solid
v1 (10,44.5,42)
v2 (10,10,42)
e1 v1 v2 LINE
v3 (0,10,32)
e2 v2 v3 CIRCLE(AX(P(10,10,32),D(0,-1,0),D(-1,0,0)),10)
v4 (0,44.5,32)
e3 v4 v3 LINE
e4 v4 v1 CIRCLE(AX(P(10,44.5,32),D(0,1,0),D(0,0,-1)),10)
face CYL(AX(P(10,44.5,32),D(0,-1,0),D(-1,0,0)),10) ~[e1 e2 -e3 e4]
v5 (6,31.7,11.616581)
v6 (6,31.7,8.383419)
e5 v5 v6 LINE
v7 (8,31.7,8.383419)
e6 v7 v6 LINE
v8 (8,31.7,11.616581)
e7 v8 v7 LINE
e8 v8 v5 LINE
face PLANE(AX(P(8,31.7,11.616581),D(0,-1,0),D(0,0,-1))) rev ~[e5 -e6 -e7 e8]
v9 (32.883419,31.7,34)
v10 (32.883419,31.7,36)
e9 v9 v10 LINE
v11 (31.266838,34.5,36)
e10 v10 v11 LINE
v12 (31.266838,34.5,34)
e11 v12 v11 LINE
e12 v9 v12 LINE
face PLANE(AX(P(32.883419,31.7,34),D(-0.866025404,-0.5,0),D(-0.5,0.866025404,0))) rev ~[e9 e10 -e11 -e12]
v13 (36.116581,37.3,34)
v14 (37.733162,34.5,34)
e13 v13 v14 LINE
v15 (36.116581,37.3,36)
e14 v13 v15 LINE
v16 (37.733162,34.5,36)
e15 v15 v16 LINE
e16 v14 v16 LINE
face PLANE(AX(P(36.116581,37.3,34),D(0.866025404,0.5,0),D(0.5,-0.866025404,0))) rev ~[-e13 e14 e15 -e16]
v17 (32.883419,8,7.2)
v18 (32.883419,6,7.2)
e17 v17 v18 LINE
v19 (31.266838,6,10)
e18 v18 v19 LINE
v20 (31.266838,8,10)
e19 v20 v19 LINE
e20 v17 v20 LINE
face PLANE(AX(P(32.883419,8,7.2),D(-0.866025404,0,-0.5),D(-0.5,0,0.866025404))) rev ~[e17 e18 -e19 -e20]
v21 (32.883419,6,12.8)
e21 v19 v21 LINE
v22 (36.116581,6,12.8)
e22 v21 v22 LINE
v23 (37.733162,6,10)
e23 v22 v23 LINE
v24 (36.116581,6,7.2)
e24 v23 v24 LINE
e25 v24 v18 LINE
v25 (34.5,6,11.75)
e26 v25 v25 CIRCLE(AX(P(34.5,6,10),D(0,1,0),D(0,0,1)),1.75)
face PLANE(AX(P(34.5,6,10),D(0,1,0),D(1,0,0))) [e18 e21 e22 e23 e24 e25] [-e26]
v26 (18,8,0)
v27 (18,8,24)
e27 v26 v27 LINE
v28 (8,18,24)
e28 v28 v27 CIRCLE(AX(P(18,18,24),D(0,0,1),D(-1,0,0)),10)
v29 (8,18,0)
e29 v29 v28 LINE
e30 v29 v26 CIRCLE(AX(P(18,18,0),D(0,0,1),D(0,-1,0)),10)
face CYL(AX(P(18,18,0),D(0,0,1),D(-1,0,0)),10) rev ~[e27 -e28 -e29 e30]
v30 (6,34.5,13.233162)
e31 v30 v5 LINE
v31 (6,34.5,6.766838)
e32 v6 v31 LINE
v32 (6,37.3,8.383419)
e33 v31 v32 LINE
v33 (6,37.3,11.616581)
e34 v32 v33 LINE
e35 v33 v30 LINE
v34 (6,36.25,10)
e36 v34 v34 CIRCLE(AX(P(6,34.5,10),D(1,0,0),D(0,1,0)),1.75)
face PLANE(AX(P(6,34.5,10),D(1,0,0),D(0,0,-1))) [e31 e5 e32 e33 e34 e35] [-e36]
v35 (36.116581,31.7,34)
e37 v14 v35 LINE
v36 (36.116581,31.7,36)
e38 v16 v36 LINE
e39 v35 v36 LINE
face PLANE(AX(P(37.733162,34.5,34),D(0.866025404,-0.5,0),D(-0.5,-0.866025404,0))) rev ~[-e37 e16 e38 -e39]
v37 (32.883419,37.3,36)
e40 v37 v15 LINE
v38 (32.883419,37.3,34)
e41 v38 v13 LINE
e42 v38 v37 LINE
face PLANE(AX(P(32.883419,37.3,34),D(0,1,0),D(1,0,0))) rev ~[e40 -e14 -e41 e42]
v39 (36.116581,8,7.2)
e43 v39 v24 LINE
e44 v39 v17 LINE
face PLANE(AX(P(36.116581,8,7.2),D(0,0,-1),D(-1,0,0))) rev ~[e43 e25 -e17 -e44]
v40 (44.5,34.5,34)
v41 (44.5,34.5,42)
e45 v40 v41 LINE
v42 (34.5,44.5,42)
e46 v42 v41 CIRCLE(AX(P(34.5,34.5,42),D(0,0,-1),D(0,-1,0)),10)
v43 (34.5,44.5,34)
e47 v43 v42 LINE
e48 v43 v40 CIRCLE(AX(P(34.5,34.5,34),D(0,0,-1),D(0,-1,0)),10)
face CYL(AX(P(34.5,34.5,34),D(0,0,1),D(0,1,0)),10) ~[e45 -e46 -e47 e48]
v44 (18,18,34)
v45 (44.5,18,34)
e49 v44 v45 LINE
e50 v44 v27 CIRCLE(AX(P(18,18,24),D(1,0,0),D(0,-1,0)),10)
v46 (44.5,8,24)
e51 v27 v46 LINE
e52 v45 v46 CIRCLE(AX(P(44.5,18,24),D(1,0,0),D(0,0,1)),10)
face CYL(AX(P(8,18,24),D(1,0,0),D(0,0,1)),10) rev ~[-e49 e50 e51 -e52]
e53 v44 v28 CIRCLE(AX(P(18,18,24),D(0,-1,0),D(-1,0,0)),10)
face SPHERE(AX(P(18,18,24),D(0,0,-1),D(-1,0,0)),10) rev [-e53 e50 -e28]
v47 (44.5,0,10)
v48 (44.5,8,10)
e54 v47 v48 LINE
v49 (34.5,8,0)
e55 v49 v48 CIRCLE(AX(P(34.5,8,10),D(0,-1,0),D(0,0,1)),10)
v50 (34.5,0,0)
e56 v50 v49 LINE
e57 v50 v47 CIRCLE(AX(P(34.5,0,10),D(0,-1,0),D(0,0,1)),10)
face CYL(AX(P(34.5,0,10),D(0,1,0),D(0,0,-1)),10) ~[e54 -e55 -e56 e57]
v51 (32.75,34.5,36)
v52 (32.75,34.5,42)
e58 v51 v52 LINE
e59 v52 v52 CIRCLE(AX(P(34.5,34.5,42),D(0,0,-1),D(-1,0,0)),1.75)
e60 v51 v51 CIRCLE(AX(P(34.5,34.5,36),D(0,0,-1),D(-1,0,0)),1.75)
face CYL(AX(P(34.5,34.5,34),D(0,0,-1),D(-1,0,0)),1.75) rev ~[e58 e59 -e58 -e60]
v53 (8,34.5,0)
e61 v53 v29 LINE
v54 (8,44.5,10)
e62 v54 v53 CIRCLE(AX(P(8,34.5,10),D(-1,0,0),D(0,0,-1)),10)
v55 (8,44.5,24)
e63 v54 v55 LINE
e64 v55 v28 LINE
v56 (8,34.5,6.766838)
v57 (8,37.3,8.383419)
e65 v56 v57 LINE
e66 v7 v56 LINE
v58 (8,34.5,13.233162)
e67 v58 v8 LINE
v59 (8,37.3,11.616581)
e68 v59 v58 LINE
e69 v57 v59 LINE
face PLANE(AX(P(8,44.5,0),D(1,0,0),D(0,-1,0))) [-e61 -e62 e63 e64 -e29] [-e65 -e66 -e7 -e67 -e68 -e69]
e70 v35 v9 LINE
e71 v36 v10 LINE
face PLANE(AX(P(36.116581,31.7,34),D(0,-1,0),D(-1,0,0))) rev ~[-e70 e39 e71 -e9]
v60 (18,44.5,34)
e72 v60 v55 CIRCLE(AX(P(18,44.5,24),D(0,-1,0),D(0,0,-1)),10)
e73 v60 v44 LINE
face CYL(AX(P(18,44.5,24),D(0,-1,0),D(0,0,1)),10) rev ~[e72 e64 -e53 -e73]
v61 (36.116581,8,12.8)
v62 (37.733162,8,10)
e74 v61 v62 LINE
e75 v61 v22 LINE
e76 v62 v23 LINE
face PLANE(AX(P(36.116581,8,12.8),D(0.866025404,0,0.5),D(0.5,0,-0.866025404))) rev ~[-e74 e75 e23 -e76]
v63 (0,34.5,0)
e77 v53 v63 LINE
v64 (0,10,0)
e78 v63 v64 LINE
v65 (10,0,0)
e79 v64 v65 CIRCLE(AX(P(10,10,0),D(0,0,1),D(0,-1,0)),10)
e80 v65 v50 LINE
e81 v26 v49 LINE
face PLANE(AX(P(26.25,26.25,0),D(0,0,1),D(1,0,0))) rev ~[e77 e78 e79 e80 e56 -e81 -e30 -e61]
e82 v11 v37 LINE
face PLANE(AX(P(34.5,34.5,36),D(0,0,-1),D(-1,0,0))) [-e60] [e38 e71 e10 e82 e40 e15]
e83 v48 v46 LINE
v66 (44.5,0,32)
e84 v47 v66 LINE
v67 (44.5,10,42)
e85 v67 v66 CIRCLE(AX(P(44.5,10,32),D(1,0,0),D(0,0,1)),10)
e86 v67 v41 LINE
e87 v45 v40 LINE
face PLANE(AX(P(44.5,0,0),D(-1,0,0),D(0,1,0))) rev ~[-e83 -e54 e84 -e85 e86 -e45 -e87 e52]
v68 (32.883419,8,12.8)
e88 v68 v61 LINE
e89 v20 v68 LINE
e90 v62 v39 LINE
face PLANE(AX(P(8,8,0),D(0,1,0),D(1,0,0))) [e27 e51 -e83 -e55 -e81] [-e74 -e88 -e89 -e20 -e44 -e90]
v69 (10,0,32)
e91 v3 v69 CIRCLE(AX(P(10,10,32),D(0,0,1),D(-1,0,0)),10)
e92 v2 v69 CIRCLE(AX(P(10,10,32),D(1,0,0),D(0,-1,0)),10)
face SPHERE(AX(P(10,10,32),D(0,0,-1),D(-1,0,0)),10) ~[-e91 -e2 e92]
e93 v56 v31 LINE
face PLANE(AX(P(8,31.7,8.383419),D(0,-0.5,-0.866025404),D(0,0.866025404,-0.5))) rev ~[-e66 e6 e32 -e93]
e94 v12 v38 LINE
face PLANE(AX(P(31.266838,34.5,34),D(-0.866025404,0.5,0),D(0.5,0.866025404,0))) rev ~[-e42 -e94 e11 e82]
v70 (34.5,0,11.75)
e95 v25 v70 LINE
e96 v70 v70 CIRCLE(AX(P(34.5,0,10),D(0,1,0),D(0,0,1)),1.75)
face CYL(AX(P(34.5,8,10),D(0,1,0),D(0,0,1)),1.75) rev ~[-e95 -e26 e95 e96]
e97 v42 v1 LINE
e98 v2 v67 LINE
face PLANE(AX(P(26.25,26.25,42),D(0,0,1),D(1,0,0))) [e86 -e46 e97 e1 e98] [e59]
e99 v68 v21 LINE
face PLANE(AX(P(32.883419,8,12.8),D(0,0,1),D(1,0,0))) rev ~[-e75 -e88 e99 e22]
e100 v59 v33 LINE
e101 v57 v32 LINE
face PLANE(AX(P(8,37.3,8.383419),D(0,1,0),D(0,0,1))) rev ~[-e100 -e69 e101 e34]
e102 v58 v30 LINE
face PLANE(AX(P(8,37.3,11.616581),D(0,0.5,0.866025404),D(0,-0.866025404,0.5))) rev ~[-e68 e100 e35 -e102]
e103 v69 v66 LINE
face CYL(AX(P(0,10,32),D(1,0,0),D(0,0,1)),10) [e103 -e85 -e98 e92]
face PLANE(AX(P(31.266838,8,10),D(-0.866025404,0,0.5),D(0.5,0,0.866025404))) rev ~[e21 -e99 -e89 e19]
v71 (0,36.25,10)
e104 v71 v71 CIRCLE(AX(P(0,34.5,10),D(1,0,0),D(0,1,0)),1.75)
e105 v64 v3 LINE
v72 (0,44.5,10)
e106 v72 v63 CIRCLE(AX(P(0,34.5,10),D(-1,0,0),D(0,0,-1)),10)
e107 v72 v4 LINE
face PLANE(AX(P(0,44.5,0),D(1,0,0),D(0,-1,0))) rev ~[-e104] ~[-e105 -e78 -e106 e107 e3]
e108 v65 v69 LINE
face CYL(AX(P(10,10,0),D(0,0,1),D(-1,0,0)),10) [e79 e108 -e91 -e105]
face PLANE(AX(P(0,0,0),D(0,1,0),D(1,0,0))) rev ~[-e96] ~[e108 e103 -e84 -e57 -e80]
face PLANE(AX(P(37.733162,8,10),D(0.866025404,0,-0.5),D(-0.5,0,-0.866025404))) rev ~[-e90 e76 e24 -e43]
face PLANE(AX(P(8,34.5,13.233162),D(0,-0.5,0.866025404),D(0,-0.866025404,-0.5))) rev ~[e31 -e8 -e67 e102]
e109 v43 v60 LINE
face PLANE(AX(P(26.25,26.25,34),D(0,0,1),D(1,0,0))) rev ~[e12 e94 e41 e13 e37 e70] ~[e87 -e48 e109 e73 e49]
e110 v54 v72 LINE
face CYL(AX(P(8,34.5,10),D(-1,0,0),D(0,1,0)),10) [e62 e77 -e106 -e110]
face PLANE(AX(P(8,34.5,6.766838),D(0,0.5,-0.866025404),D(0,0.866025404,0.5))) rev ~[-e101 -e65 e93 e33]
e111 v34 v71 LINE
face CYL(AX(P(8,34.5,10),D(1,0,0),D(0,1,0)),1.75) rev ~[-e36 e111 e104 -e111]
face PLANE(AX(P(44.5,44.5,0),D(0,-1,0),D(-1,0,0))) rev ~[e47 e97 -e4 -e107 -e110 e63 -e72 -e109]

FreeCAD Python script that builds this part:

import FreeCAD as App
import Part
import Sketcher

V = App.Vector
Q = App.Units.Quantity


def edges_at(feature, points):
    """Names of the edges that pass closest to the given points."""
    edges = feature.Shape.Edges
    near = lambda p: min(range(len(edges)), key=lambda i: edges[i].distToShape(Part.Vertex(*p))[0])
    return sorted({f"Edge{near(p) + 1}" for p in points})


def add_polygon(sketch, points):
    """Adds a closed chain of lines whose ends are joined by coincident constraints."""
    first, n = sketch.GeometryCount, len(points)
    for a, b in zip(points, points[1:] + points[:1]):
        sketch.addGeometry(Part.LineSegment(App.Vector(*a, 0), App.Vector(*b, 0)), False)
    for i in range(n):
        sketch.addConstraint(Sketcher.Constraint("Coincident", first + i, 2, first + (i + 1) % n, 1))

doc = App.newDocument("Part")
body = doc.addObject("PartDesign::Body", "Body")

# Sketch on XY plane
sketch1 = body.newObject("Sketcher::SketchObject", "Sketch")
sketch1.AttachmentSupport = (doc.getObject("XY_Plane"), [""])
sketch1.MapMode = "FlatFace"
add_polygon(sketch1, [(44.5, 44.5), (0, 44.5), (0, 0), (44.5, 0)])  # lines 0-3
sketch1.addConstraint([
    Sketcher.Constraint("Horizontal", 0),
    Sketcher.Constraint("Vertical", 1),
    Sketcher.Constraint("Horizontal", 2),
    Sketcher.Constraint("Vertical", 3),
    Sketcher.Constraint("Coincident", 1, 2, -1, 1),
    Sketcher.Constraint("Equal", 2, 1),
    Sketcher.Constraint("DistanceX", 0, 2, 0, 1, Q("44.5 mm")),
])
pad1 = body.newObject("PartDesign::Pad", "Pad")
pad1.Profile = sketch1
pad1.Length = 42

# Sketch on XY plane
sketch2 = body.newObject("Sketcher::SketchObject", "Sketch001")
sketch2.AttachmentSupport = (doc.getObject("XY_Plane"), [""])
sketch2.MapMode = "FlatFace"
add_polygon(sketch2, [(8, 8), (44.5, 8), (44.5, 44.5), (8, 44.5)])  # lines 0-3
sketch2.addConstraint([
    Sketcher.Constraint("Horizontal", 0),
    Sketcher.Constraint("Vertical", 1),
    Sketcher.Constraint("Horizontal", 2),
    Sketcher.Constraint("Vertical", 3),
    Sketcher.Constraint("Equal", 2, 1),
    Sketcher.Constraint("DistanceX", 0, 1, 0, 2, Q("36.5 mm")),
    Sketcher.Constraint("DistanceY", -1, 1, 0, 2, Q("8 mm")),
    Sketcher.Constraint("DistanceX", -1, 1, 2, 2, Q("8 mm")),
])
pocket1 = body.newObject("PartDesign::Pocket", "Pocket")
pocket1.Profile = sketch2
pocket1.Length = 34
pocket1.Reversed = True

# Sketch on XY plane
sketch3 = body.newObject("Sketcher::SketchObject", "Sketch002")
sketch3.AttachmentSupport = (doc.getObject("XY_Plane"), [""])
sketch3.MapMode = "FlatFace"
sketch3.AttachmentOffset = App.Placement(V(0, 0, 34), App.Rotation())
sketch3.addGeometry(Part.Circle(V(34.5, 34.5, 0), V(0, 0, 1), 1.75), False)
sketch3.addConstraint([
    Sketcher.Constraint("Diameter", 0, Q("3.5 mm")),
    Sketcher.Constraint("DistanceX", -1, 1, 0, 3, Q("34.5 mm")),
    Sketcher.Constraint("DistanceY", -1, 1, 0, 3, Q("34.5 mm")),
])
pocket2 = body.newObject("PartDesign::Pocket", "Pocket001")
pocket2.Profile = sketch3
pocket2.Type = "ThroughAll"
pocket2.Reversed = True

# Sketch on XY plane
sketch4 = body.newObject("Sketcher::SketchObject", "Sketch003")
sketch4.AttachmentSupport = (doc.getObject("XY_Plane"), [""])
sketch4.MapMode = "FlatFace"
sketch4.AttachmentOffset = App.Placement(V(0, 0, 34), App.Rotation())
add_polygon(sketch4, [(31.266838, 34.5), (32.883419, 37.3), (36.116581, 37.3), (37.733162, 34.5), (36.116581, 31.7), (32.883419, 31.7)])  # lines 0-5
sketch4.addGeometry(Part.Circle(V(34.5, 34.5, 0), V(0, 0, 1), 1.75), False)  # 6
sketch4.addConstraint([
    Sketcher.Constraint("Horizontal", 1),
    Sketcher.Constraint("Horizontal", 4),
    Sketcher.Constraint("Parallel", 0, 3),
    Sketcher.Constraint("Parallel", 2, 5),
    Sketcher.Constraint("Horizontal", 6, 3, 2, 2),
    Sketcher.Constraint("Horizontal", 2, 2, 5, 2),
    Sketcher.Constraint("Vertical", 1, 2, 3, 2),
    Sketcher.Constraint("Vertical", 0, 2, 4, 2),
    Sketcher.Constraint("Diameter", 6, Q("3.5 mm")),
    Sketcher.Constraint("Angle", 0, Q("60 deg")),
    Sketcher.Constraint("DistanceX", -1, 1, 6, 3, Q("34.5 mm")),
    Sketcher.Constraint("DistanceY", -1, 1, 6, 3, Q("34.5 mm")),
    Sketcher.Constraint("DistanceY", -1, 1, 0, 2, Q("37.3 mm")),
    Sketcher.Constraint("DistanceX", 1, 1, 1, 2, Q("3.233162 mm")),
    Sketcher.Constraint("DistanceX", -1, 1, 0, 2, Q("32.883419 mm")),
])
pocket3 = body.newObject("PartDesign::Pocket", "Pocket002")
pocket3.Profile = sketch4
pocket3.Length = 2
pocket3.Reversed = True

# Sketch on YZ plane
sketch5 = body.newObject("Sketcher::SketchObject", "Sketch004")
sketch5.AttachmentSupport = (doc.getObject("YZ_Plane"), [""])
sketch5.MapMode = "FlatFace"
sketch5.AttachmentOffset = App.Placement(V(0, 0, 8), App.Rotation())
sketch5.addGeometry(Part.Circle(V(34.5, 10, 0), V(0, 0, 1), 1.75), False)
sketch5.addConstraint([
    Sketcher.Constraint("Diameter", 0, Q("3.5 mm")),
    Sketcher.Constraint("DistanceY", -1, 1, 0, 3, Q("10 mm")),
    Sketcher.Constraint("DistanceX", -1, 1, 0, 3, Q("34.5 mm")),
])
pocket4 = body.newObject("PartDesign::Pocket", "Pocket003")
pocket4.Profile = sketch5
pocket4.Type = "ThroughAll"

# Sketch on YZ plane
sketch6 = body.newObject("Sketcher::SketchObject", "Sketch005")
sketch6.AttachmentSupport = (doc.getObject("YZ_Plane"), [""])
sketch6.MapMode = "FlatFace"
sketch6.AttachmentOffset = App.Placement(V(0, 0, 8), App.Rotation())
add_polygon(sketch6, [(34.5, 6.766838), (37.3, 8.383419), (37.3, 11.616581), (34.5, 13.233162), (31.7, 11.616581), (31.7, 8.383419)])  # lines 0-5
sketch6.addGeometry(Part.Circle(V(34.5, 10, 0), V(0, 0, 1), 1.75), False)  # 6
sketch6.addConstraint([
    Sketcher.Constraint("Vertical", 1),
    Sketcher.Constraint("Vertical", 4),
    Sketcher.Constraint("Parallel", 0, 3),
    Sketcher.Constraint("Parallel", 2, 5),
    Sketcher.Constraint("Horizontal", 1, 2, 3, 2),
    Sketcher.Constraint("Horizontal", 0, 2, 4, 2),
    Sketcher.Constraint("Vertical", 6, 3, 2, 2),
    Sketcher.Constraint("Vertical", 2, 2, 5, 2),
    Sketcher.Constraint("Diameter", 6, Q("3.5 mm")),
    Sketcher.Constraint("Angle", 0, Q("30 deg")),
    Sketcher.Constraint("DistanceY", -1, 1, 6, 3, Q("10 mm")),
    Sketcher.Constraint("DistanceX", -1, 1, 6, 3, Q("34.5 mm")),
    Sketcher.Constraint("DistanceX", -1, 1, 0, 2, Q("37.3 mm")),
    Sketcher.Constraint("DistanceY", 1, 1, 1, 2, Q("3.233162 mm")),
    Sketcher.Constraint("DistanceY", -1, 1, 0, 2, Q("8.383419 mm")),
])
pocket5 = body.newObject("PartDesign::Pocket", "Pocket004")
pocket5.Profile = sketch6
pocket5.Length = 2

# Sketch on XZ plane
sketch7 = body.newObject("Sketcher::SketchObject", "Sketch006")
sketch7.AttachmentSupport = (doc.getObject("XZ_Plane"), [""])
sketch7.MapMode = "FlatFace"
sketch7.AttachmentOffset = App.Placement(V(0, 0, -8), App.Rotation())
sketch7.addGeometry(Part.Circle(V(34.5, 10, 0), V(0, 0, 1), 1.75), False)
sketch7.addConstraint([
    Sketcher.Constraint("Diameter", 0, Q("3.5 mm")),
    Sketcher.Constraint("DistanceY", -1, 1, 0, 3, Q("10 mm")),
    Sketcher.Constraint("DistanceX", -1, 1, 0, 3, Q("34.5 mm")),
])
pocket6 = body.newObject("PartDesign::Pocket", "Pocket005")
pocket6.Profile = sketch7
pocket6.Type = "ThroughAll"
pocket6.Reversed = True

# Sketch on XZ plane
sketch8 = body.newObject("Sketcher::SketchObject", "Sketch007")
sketch8.AttachmentSupport = (doc.getObject("XZ_Plane"), [""])
sketch8.MapMode = "FlatFace"
sketch8.AttachmentOffset = App.Placement(V(0, 0, -8), App.Rotation())
add_polygon(sketch8, [(37.733162, 10), (36.116581, 7.2), (32.883419, 7.2), (31.266838, 10), (32.883419, 12.8), (36.116581, 12.8)])  # lines 0-5
sketch8.addGeometry(Part.Circle(V(34.5, 10, 0), V(0, 0, 1), 1.75), False)  # 6
sketch8.addConstraint([
    Sketcher.Constraint("Horizontal", 1),
    Sketcher.Constraint("Horizontal", 4),
    Sketcher.Constraint("Parallel", 0, 3),
    Sketcher.Constraint("Parallel", 2, 5),
    Sketcher.Constraint("Horizontal", 6, 3, 2, 2),
    Sketcher.Constraint("Horizontal", 2, 2, 5, 2),
    Sketcher.Constraint("Vertical", 1, 2, 3, 2),
    Sketcher.Constraint("Vertical", 0, 2, 4, 2),
    Sketcher.Constraint("Diameter", 6, Q("3.5 mm")),
    Sketcher.Constraint("Angle", 0, Q("-120 deg")),
    Sketcher.Constraint("DistanceY", -1, 1, 6, 3, Q("10 mm")),
    Sketcher.Constraint("DistanceX", -1, 1, 6, 3, Q("34.5 mm")),
    Sketcher.Constraint("DistanceY", -1, 1, 0, 2, Q("7.2 mm")),
    Sketcher.Constraint("DistanceX", 1, 2, 1, 1, Q("3.233162 mm")),
    Sketcher.Constraint("DistanceX", -1, 1, 0, 2, Q("36.116581 mm")),
])
pocket7 = body.newObject("PartDesign::Pocket", "Pocket006")
pocket7.Profile = sketch8
pocket7.Length = 2
pocket7.Reversed = True
doc.recompute()

fillet = body.newObject("PartDesign::Fillet", "Fillet")
fillet.Base = (pocket7, edges_at(pocket7, [
    (44.5, 44.5, 38),
    (0, 0, 21),
    (0, 22.25, 42),
    (44.5, 4, 0),
    (22.25, 0, 42),
    (8, 8, 17),
    (8, 26.25, 34),
    (26.25, 8, 34),
    (4, 44.5, 0),
]))
fillet.Radius = 10

doc.recompute()
